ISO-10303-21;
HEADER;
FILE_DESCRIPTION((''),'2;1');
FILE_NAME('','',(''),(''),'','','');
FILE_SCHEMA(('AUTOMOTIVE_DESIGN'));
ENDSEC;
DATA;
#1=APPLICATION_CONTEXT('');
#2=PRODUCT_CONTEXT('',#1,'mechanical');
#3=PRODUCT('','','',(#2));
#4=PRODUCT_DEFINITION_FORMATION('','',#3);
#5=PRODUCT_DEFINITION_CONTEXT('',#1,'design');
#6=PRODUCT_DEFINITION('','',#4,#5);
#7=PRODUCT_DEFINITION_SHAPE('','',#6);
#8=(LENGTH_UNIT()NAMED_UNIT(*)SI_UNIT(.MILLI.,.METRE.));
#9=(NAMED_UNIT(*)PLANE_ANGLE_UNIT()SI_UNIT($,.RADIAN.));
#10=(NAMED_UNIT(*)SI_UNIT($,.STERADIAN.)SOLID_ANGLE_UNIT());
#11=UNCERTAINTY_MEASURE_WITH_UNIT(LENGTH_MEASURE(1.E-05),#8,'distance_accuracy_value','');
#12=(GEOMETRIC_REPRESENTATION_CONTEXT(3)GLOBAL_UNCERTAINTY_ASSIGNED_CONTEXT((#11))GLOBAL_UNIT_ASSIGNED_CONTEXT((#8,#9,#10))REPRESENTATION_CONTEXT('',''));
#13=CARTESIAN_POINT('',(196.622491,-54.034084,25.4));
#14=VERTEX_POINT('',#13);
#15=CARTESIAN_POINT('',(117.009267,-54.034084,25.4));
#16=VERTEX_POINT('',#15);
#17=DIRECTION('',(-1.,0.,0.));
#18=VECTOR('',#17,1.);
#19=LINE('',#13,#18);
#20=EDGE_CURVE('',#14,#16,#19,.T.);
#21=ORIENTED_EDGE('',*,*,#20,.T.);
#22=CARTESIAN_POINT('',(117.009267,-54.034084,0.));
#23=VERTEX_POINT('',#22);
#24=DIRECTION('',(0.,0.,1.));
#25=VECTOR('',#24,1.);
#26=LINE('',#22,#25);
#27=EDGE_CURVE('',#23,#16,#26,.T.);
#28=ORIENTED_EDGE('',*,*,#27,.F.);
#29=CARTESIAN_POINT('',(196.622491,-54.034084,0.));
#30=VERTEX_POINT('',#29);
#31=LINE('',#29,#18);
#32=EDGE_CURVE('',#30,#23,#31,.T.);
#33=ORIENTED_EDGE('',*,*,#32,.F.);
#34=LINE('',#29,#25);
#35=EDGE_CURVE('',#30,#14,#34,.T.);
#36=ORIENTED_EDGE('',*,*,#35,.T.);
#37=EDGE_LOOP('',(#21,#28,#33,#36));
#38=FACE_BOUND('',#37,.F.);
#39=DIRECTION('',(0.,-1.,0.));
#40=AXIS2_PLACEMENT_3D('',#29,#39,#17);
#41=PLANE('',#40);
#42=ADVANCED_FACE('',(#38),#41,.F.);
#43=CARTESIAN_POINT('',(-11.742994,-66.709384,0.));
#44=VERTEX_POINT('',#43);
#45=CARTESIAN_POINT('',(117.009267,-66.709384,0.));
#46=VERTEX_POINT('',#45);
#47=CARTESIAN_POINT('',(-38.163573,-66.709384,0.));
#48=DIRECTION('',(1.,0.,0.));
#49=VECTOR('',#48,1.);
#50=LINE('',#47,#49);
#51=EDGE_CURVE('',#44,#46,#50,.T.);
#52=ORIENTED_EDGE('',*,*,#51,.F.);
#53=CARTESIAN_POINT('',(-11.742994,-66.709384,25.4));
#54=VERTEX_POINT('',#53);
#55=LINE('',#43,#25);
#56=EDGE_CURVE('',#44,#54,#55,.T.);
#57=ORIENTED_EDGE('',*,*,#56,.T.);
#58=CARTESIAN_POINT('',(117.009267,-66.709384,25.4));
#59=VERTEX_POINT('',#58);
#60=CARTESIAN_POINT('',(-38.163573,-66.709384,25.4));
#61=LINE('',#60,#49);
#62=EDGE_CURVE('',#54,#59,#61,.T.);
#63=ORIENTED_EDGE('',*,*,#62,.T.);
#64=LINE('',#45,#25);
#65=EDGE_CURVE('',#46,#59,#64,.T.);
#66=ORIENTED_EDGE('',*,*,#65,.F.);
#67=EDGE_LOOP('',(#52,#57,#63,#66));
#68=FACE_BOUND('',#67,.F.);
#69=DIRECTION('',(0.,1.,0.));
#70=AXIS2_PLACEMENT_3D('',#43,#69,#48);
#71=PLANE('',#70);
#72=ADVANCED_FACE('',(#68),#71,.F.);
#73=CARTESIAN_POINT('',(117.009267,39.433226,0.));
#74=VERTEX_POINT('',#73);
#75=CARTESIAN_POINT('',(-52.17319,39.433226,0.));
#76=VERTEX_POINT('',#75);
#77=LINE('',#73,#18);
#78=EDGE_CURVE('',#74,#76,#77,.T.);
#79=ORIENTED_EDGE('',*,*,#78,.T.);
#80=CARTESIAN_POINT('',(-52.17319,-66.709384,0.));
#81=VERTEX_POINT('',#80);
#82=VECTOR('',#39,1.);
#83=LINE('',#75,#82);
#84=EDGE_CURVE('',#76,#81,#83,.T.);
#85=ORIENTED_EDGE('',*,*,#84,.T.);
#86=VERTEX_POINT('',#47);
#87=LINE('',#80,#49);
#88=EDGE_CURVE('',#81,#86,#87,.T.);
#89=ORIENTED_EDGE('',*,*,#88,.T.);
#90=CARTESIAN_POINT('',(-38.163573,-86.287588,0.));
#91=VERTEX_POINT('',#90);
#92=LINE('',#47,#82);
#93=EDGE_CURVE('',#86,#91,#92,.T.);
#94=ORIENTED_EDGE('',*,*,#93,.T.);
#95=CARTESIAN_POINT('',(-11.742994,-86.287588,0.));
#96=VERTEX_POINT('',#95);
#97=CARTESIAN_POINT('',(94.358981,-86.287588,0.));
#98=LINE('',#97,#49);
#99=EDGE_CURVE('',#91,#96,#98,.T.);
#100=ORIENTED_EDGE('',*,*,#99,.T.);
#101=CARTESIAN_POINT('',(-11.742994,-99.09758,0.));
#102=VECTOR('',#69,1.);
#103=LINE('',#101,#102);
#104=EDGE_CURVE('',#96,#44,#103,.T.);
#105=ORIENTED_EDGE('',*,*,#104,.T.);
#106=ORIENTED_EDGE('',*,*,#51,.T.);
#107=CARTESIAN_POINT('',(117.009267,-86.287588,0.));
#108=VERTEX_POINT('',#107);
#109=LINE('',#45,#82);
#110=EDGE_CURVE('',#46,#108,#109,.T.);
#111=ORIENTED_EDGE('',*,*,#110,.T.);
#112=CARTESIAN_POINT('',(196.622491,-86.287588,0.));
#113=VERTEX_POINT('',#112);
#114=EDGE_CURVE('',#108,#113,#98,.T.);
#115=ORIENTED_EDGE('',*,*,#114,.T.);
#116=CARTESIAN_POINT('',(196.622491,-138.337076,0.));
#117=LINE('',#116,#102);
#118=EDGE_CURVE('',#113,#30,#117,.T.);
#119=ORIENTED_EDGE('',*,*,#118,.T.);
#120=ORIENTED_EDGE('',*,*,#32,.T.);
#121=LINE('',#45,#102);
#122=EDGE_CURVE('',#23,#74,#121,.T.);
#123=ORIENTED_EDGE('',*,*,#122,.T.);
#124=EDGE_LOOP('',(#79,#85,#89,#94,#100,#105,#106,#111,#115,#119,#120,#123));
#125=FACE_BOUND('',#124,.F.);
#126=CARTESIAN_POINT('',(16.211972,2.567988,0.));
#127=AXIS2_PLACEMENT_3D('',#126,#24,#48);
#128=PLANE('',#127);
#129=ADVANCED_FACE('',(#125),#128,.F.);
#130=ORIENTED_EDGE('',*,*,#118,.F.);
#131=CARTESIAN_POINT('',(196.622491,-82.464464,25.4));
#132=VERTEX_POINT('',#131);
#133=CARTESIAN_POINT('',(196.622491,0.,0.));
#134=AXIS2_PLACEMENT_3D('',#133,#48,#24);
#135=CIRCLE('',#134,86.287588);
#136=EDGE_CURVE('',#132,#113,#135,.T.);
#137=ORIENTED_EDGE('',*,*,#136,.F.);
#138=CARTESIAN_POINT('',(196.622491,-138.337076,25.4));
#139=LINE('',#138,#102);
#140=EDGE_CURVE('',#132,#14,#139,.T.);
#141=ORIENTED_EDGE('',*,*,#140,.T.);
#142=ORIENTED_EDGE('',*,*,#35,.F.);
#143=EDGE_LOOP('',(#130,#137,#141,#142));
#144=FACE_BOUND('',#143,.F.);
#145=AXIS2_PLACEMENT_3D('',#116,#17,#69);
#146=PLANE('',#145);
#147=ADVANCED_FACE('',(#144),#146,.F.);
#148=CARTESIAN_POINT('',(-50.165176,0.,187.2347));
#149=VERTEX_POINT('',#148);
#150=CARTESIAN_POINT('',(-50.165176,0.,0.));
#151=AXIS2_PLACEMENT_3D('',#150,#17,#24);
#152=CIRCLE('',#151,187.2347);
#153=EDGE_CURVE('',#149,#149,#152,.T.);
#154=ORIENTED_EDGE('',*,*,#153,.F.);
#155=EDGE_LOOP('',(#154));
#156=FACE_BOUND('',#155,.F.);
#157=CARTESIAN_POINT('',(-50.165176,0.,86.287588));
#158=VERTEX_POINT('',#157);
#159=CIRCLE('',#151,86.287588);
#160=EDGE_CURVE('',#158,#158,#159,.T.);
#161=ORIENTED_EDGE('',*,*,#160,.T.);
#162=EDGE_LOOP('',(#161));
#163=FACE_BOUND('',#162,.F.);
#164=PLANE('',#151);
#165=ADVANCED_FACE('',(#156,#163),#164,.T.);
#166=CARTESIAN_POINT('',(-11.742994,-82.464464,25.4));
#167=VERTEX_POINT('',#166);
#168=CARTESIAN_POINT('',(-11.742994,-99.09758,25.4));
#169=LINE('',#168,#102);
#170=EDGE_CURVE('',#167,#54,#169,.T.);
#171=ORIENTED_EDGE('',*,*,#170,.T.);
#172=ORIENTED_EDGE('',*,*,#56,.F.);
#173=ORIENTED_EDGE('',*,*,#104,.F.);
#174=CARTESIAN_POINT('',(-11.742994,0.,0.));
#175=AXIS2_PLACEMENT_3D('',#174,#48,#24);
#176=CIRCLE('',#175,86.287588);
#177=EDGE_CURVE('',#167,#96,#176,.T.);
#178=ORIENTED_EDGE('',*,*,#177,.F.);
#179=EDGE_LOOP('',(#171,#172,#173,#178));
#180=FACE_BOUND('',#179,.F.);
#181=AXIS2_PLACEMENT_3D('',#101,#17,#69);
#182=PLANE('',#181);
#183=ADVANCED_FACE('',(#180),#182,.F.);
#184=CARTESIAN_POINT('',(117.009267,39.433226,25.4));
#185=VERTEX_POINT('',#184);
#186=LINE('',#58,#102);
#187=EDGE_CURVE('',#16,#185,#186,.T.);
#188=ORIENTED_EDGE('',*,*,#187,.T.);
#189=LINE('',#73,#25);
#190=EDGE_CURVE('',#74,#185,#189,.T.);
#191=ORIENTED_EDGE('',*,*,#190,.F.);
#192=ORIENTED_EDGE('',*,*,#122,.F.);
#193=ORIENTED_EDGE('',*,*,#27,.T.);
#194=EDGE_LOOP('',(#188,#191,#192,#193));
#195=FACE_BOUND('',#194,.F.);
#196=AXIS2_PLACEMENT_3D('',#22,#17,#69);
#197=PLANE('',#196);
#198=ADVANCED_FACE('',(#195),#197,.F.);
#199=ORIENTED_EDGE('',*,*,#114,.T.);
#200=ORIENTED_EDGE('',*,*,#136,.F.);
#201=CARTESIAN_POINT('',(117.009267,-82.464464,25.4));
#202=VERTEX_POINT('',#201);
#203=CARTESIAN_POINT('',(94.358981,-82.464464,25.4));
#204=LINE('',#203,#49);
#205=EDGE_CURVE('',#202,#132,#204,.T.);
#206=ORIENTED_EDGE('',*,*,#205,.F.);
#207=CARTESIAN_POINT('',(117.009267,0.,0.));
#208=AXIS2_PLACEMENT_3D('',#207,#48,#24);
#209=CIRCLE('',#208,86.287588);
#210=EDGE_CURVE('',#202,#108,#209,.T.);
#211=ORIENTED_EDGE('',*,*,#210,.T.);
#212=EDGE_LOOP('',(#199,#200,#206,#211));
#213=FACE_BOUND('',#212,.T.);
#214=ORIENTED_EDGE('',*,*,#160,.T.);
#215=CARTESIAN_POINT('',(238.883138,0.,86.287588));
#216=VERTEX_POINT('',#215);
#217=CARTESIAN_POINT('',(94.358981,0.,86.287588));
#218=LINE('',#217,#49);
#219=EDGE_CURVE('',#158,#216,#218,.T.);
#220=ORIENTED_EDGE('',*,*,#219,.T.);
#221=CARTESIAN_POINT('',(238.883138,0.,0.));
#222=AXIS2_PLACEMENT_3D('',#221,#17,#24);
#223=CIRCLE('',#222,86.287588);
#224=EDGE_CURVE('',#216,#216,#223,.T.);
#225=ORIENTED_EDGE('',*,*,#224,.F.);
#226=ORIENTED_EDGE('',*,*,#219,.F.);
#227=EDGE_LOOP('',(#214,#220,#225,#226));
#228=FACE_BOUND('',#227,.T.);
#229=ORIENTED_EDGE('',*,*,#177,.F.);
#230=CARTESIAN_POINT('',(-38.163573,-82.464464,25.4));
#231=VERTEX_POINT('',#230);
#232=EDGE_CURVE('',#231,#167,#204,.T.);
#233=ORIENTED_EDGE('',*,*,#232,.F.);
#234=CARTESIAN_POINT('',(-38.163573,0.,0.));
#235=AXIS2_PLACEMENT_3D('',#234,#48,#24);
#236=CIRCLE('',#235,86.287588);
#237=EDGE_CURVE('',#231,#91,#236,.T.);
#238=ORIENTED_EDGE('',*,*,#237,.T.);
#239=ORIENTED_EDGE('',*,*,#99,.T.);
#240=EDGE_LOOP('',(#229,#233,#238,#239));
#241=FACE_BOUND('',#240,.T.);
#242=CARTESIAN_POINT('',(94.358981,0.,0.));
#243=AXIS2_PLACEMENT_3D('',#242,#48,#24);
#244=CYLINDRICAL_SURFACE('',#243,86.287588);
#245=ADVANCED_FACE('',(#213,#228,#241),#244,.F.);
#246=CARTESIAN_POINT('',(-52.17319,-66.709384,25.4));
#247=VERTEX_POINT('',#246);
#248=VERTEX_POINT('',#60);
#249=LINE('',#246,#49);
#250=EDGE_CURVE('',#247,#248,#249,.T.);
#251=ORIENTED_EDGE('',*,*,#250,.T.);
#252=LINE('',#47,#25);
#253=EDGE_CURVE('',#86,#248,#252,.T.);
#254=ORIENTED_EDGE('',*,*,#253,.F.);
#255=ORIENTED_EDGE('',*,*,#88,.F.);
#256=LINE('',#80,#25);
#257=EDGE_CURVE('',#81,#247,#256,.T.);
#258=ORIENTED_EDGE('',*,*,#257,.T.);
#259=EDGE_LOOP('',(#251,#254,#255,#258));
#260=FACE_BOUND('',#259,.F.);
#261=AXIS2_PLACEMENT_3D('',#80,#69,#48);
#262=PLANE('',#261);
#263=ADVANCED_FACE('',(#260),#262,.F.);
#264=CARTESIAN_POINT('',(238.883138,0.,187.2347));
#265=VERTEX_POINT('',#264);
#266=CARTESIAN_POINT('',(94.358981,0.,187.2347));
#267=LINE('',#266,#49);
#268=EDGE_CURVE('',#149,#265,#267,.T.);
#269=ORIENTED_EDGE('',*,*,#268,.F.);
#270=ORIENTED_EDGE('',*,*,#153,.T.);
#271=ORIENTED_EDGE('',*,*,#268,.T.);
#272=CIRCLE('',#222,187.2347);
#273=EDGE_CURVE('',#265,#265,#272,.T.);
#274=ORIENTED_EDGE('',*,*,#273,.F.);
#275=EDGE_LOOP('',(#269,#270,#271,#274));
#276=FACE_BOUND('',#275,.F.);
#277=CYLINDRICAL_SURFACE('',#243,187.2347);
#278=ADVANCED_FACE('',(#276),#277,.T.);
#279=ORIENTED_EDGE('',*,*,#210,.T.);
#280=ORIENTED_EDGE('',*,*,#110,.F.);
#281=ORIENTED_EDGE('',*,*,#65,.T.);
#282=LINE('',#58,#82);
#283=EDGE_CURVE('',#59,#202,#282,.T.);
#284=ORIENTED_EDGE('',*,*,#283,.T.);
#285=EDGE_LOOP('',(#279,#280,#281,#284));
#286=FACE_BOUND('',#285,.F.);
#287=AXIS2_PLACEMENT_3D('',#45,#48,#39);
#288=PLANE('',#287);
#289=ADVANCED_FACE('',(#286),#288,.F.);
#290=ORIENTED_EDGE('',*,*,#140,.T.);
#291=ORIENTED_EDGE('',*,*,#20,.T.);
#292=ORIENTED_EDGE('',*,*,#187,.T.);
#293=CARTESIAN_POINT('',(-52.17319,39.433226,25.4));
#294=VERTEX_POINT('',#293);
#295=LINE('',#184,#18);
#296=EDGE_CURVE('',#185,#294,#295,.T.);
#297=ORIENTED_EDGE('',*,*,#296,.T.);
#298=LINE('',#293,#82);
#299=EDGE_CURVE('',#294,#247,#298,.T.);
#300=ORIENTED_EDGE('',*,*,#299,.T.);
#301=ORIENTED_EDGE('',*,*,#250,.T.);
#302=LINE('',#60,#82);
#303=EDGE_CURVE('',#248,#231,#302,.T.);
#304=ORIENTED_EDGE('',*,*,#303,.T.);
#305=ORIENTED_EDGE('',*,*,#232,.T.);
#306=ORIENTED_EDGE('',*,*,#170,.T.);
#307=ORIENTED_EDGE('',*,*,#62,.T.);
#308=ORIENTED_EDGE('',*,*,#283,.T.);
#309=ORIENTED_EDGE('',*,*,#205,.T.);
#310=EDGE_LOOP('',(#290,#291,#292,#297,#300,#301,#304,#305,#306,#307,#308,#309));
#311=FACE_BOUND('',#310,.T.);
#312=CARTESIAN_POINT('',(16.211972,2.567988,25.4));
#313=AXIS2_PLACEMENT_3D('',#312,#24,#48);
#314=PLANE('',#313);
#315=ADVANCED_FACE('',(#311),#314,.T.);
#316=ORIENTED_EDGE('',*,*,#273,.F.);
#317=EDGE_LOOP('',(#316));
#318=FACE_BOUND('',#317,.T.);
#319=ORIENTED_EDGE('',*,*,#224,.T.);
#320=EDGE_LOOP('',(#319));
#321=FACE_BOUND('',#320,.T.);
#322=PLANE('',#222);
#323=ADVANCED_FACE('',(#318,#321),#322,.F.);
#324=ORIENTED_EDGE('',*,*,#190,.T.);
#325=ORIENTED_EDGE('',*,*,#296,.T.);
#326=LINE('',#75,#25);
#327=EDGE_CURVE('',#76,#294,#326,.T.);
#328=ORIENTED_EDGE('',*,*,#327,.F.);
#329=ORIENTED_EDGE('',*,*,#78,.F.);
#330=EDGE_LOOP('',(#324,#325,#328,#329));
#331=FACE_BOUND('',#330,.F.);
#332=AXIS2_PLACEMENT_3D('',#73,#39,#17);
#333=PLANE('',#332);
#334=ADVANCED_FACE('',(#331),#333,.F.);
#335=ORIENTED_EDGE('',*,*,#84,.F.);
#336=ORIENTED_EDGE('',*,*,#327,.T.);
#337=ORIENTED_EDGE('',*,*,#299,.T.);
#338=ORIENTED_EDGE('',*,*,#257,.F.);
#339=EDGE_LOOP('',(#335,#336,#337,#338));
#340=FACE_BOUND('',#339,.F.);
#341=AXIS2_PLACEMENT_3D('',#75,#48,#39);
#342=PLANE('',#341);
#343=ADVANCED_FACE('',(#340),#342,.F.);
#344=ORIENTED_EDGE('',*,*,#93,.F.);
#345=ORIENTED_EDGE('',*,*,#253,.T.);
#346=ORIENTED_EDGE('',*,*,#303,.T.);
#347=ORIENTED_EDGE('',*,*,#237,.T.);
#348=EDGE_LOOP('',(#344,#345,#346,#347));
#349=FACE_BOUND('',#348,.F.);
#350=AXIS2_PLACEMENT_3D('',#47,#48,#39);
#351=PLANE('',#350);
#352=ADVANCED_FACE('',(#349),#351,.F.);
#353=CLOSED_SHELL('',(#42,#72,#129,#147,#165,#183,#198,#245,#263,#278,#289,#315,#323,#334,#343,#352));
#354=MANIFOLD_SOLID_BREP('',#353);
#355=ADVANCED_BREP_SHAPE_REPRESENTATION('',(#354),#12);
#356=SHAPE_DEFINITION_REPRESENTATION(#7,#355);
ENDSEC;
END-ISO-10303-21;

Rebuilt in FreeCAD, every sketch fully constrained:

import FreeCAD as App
import Part
import Sketcher

V = App.Vector
Q = App.Units.Quantity


def add_polygon(sketch, points):
    """Adds a closed chain of lines whose ends are joined by coincident constraints."""
    first, n = sketch.GeometryCount, len(points)
    for a, b in zip(points, points[1:] + points[:1]):
        sketch.addGeometry(Part.LineSegment(App.Vector(*a, 0), App.Vector(*b, 0)), False)
    for i in range(n):
        sketch.addConstraint(Sketcher.Constraint("Coincident", first + i, 2, first + (i + 1) % n, 1))

doc = App.newDocument("Part")
body = doc.addObject("PartDesign::Body", "Body")

sketch1 = doc.addObject("Sketcher::SketchObject", "Sketch")
body.addObject(sketch1)
sketch1.AttachmentSupport = (doc.XY_Plane, [""])
sketch1.MapMode = "FlatFace"
add_polygon(sketch1, [(117, 39), (-52, 39), (-52, -67), (-38, -67), (-38, -138), (197, -138), (197, -54), (117, -54)])
add_polygon(sketch1, [(-12, -67), (117, -67), (117, -99), (-12, -99)])
sketch1.addConstraint([
    Sketcher.Constraint("Horizontal", 0),
    Sketcher.Constraint("Vertical", 1),
    Sketcher.Constraint("Horizontal", 2),
    Sketcher.Constraint("Vertical", 3),
    Sketcher.Constraint("Horizontal", 4),
    Sketcher.Constraint("Vertical", 5),
    Sketcher.Constraint("Horizontal", 6),
    Sketcher.Constraint("Vertical", 7),
    Sketcher.Constraint("Horizontal", 8),
    Sketcher.Constraint("Vertical", 9),
    Sketcher.Constraint("Horizontal", 10),
    Sketcher.Constraint("Vertical", 11),
    Sketcher.Constraint("Horizontal", 2, 2, 8, 2),
    Sketcher.Constraint("Vertical", 7, 2, 8, 2),
    Sketcher.Constraint("DistanceX", 8, 1, 8, 2, 128.752261),
    Sketcher.Constraint("DistanceY", 1, 2, 1, 1, 106.14261),
    Sketcher.Constraint("DistanceY", 3, 2, 3, 1, 71.627691),
    Sketcher.Constraint("DistanceY", 5, 1, 5, 2, 84.302992),
    Sketcher.Constraint("DistanceX", 0, 2, 0, 1, 169.182457),
    Sketcher.Constraint("DistanceX", 2, 1, 2, 2, 14.009617),
    Sketcher.Constraint("DistanceX", 4, 1, 4, 2, 234.786063),
    Sketcher.Constraint("DistanceY", 9, 2, 9, 1, 32.388195),
    Sketcher.Constraint("DistanceX", 0, 2, -1, 1, 52.17319),
    Sketcher.Constraint("DistanceY", 9, 2, -1, 1, 99.09758),
])
pad1 = doc.addObject("PartDesign::Pad", "Pad")
body.addObject(pad1)
pad1.Profile = sketch1
pad1.Length = Q("1 in")

sketch2 = doc.addObject("Sketcher::SketchObject", "Sketch001")
body.addObject(sketch2)
sketch2.AttachmentSupport = (doc.XZ_Plane, [""])
sketch2.MapMode = "FlatFace"
add_polygon(sketch2, [(-50, 187), (-50, 86), (239, 86), (239, 187)])
sketch2.addConstraint([
    Sketcher.Constraint("Vertical", 0),
    Sketcher.Constraint("Horizontal", 1),
    Sketcher.Constraint("Vertical", 2),
    Sketcher.Constraint("Horizontal", 3),
    Sketcher.Constraint("DistanceY", 0, 2, 0, 1, 100.947112),
    Sketcher.Constraint("DistanceY", -1, 1, 2, 2, 187.2347),
    Sketcher.Constraint("DistanceX", 1, 1, 1, 2, 289.048314),
    Sketcher.Constraint("DistanceX", 0, 2, -1, 1, 50.165176),
])
revolution = doc.addObject("PartDesign::Revolution", "Revolution")
body.addObject(revolution)
revolution.Profile = sketch2
revolution.ReferenceAxis = (sketch2, ["H_Axis"])
revolution.Angle = 360

doc.recompute()
